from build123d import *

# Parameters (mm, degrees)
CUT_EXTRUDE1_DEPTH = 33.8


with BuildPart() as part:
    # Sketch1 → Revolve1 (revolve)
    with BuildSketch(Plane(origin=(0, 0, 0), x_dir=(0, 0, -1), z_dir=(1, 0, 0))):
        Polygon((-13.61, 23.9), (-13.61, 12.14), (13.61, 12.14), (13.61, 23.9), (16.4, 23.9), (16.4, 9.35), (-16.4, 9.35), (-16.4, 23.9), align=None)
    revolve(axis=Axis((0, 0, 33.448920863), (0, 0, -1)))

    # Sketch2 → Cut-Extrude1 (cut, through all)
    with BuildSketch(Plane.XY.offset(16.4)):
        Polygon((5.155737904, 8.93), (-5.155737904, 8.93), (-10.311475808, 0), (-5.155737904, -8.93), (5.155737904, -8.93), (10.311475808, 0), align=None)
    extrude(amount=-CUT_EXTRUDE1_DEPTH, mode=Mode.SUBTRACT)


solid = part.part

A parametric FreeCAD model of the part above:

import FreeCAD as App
import Part
import Sketcher
from FreeCAD import Vector
Q = App.Units.Quantity

doc = App.newDocument("Part")
body = doc.addObject("PartDesign::Body", "Body")

# Sketch on YZ plane
sketch1 = body.newObject("Sketcher::SketchObject", "Sketch")
sketch1.AttachmentSupport = (doc.getObject("YZ_Plane"), [""])
sketch1.MapMode = "FlatFace"
sketch1.addGeometry(Part.LineSegment(Vector(12.14, 13.61, 0), Vector(23.9, 13.61, 0)), False)
sketch1.addGeometry(Part.LineSegment(Vector(23.9, 13.61, 0), Vector(23.9, 16.4, 0)), False)
sketch1.addGeometry(Part.LineSegment(Vector(23.9, 16.4, 0), Vector(9.35, 16.4, 0)), False)
sketch1.addGeometry(Part.LineSegment(Vector(9.35, 16.4, 0), Vector(9.35, -16.4, 0)), False)
sketch1.addGeometry(Part.LineSegment(Vector(9.35, -16.4, 0), Vector(23.9, -16.4, 0)), False)
sketch1.addGeometry(Part.LineSegment(Vector(23.9, -16.4, 0), Vector(23.9, -13.61, 0)), False)
sketch1.addGeometry(Part.LineSegment(Vector(23.9, -13.61, 0), Vector(12.14, -13.61, 0)), False)
sketch1.addGeometry(Part.LineSegment(Vector(12.14, -13.61, 0), Vector(12.14, 13.61, 0)), False)
sketch1.addConstraint(Sketcher.Constraint("Coincident", 0, 2, 1, 1))
sketch1.addConstraint(Sketcher.Constraint("Coincident", 1, 2, 2, 1))
sketch1.addConstraint(Sketcher.Constraint("Coincident", 2, 2, 3, 1))
sketch1.addConstraint(Sketcher.Constraint("Coincident", 3, 2, 4, 1))
sketch1.addConstraint(Sketcher.Constraint("Coincident", 4, 2, 5, 1))
sketch1.addConstraint(Sketcher.Constraint("Coincident", 5, 2, 6, 1))
sketch1.addConstraint(Sketcher.Constraint("Coincident", 6, 2, 7, 1))
sketch1.addConstraint(Sketcher.Constraint("Coincident", 7, 2, 0, 1))
sketch1.addConstraint(Sketcher.Constraint("Horizontal", 0))
sketch1.addConstraint(Sketcher.Constraint("Vertical", 1))
sketch1.addConstraint(Sketcher.Constraint("Horizontal", 2))
sketch1.addConstraint(Sketcher.Constraint("Vertical", 3))
sketch1.addConstraint(Sketcher.Constraint("Horizontal", 4))
sketch1.addConstraint(Sketcher.Constraint("Vertical", 5))
sketch1.addConstraint(Sketcher.Constraint("Horizontal", 6))
sketch1.addConstraint(Sketcher.Constraint("Vertical", 7))
sketch1.addConstraint(Sketcher.Constraint("Symmetric", 1, 2, 4, 2, -1))
sketch1.addConstraint(Sketcher.Constraint("Equal", 1, 5))
sketch1.addConstraint(Sketcher.Constraint("DistanceY", 3, 2, 3, 1, Q("32.8 mm")))
sketch1.addConstraint(Sketcher.Constraint("DistanceX", 0, 1, 0, 2, Q("11.76 mm")))
sketch1.addConstraint(Sketcher.Constraint("DistanceX", 2, 2, 2, 1, Q("14.55 mm")))
sketch1.addConstraint(Sketcher.Constraint("DistanceY", 1, 1, 1, 2, Q("2.79 mm")))
sketch1.addConstraint(Sketcher.Constraint("DistanceX", -1, 1, 0, 2, Q("23.9 mm")))
revolution = body.newObject("PartDesign::Revolution", "Revolution")
revolution.Profile = sketch1
revolution.ReferenceAxis = (sketch1, ["V_Axis"])
revolution.Angle = 360

# Sketch on XY plane
sketch2 = body.newObject("Sketcher::SketchObject", "Sketch001")
sketch2.AttachmentSupport = (doc.getObject("XY_Plane"), [""])
sketch2.MapMode = "FlatFace"
sketch2.AttachmentOffset = App.Placement(Vector(0, 0, 16.4), App.Rotation())
sketch2.addGeometry(Part.LineSegment(Vector(5.155738, 8.93, 0), Vector(-5.155738, 8.93, 0)), False)
sketch2.addGeometry(Part.LineSegment(Vector(-5.155738, 8.93, 0), Vector(-10.311476, 0, 0)), False)
sketch2.addGeometry(Part.LineSegment(Vector(-10.311476, 0, 0), Vector(-5.155738, -8.93, 0)), False)
sketch2.addGeometry(Part.LineSegment(Vector(-5.155738, -8.93, 0), Vector(5.155738, -8.93, 0)), False)
sketch2.addGeometry(Part.LineSegment(Vector(5.155738, -8.93, 0), Vector(10.311476, 0, 0)), False)
sketch2.addGeometry(Part.LineSegment(Vector(10.311476, 0, 0), Vector(5.155738, 8.93, 0)), False)
sketch2.addConstraint(Sketcher.Constraint("Coincident", 0, 2, 1, 1))
sketch2.addConstraint(Sketcher.Constraint("Coincident", 1, 2, 2, 1))
sketch2.addConstraint(Sketcher.Constraint("Coincident", 2, 2, 3, 1))
sketch2.addConstraint(Sketcher.Constraint("Coincident", 3, 2, 4, 1))
sketch2.addConstraint(Sketcher.Constraint("Coincident", 4, 2, 5, 1))
sketch2.addConstraint(Sketcher.Constraint("Coincident", 5, 2, 0, 1))
sketch2.addConstraint(Sketcher.Constraint("Horizontal", 0))
sketch2.addConstraint(Sketcher.Constraint("Horizontal", 3))
sketch2.addConstraint(Sketcher.Constraint("Symmetric", 0, 2, 3, 2, -1, 1))
sketch2.addConstraint(Sketcher.Constraint("Symmetric", 1, 2, 4, 2, -1, 1))
sketch2.addConstraint(Sketcher.Constraint("PointOnObject", 1, 2, -1))
sketch2.addConstraint(Sketcher.Constraint("Parallel", 2, 5))
sketch2.addConstraint(Sketcher.Constraint("Vertical", 0, 2, 2, 2))
sketch2.addConstraint(Sketcher.Constraint("Angle", 1, Q("-120 deg")))
sketch2.addConstraint(Sketcher.Constraint("DistanceY", -1, 1, 0, 2, Q("8.93 mm")))
sketch2.addConstraint(Sketcher.Constraint("DistanceX", 0, 2, 0, 1, Q("10.311476 mm")))
pocket1 = body.newObject("PartDesign::Pocket", "Pocket")
pocket1.Profile = sketch2
pocket1.Type = "ThroughAll"

doc.recompute()
